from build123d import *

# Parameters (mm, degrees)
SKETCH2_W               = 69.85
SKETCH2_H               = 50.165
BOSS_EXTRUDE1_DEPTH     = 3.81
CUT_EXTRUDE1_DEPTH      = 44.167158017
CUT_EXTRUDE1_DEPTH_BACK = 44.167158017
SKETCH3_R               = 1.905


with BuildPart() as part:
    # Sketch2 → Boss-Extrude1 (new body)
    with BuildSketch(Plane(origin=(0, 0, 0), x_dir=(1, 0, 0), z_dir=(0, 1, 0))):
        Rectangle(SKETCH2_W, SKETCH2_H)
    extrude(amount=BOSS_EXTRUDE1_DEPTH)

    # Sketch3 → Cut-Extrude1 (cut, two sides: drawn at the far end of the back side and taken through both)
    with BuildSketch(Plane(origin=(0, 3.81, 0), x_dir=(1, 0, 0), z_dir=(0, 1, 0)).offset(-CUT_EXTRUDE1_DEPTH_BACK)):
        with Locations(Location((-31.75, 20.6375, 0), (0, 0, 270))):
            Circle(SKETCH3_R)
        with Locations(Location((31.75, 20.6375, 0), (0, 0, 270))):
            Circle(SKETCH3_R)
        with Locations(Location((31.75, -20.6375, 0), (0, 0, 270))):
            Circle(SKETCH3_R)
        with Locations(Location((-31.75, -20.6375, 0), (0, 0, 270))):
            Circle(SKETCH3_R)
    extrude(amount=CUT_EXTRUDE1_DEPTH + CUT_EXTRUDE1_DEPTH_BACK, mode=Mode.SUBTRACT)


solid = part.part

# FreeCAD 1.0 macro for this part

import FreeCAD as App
import Part
import Sketcher
from FreeCAD import Vector
Q = App.Units.Quantity


def add_polygon(sketch, points):
    """Adds a closed chain of lines whose ends are joined by coincident constraints."""
    first, n = sketch.GeometryCount, len(points)
    for a, b in zip(points, points[1:] + points[:1]):
        sketch.addGeometry(Part.LineSegment(App.Vector(*a, 0), App.Vector(*b, 0)), False)
    for i in range(n):
        sketch.addConstraint(Sketcher.Constraint("Coincident", first + i, 2, first + (i + 1) % n, 1))

doc = App.newDocument("Part")
body = doc.addObject("PartDesign::Body", "Body")

sketch1 = doc.addObject("Sketcher::SketchObject", "Sketch")
body.addObject(sketch1)
sketch1.AttachmentSupport = (doc.XZ_Plane, [""])
sketch1.MapMode = "FlatFace"
add_polygon(sketch1, [(-35, -25), (-35, 25), (35, 25), (35, -25)])
sketch1.addConstraint([
    Sketcher.Constraint("Vertical", 0),
    Sketcher.Constraint("Horizontal", 1),
    Sketcher.Constraint("Vertical", 2),
    Sketcher.Constraint("Horizontal", 3),
    Sketcher.Constraint("Symmetric", 0, 2, 2, 2, -1, 1),
    Sketcher.Constraint("DistanceX", 1, 1, 1, 2, Q("2.75 in")),
    Sketcher.Constraint("DistanceY", 0, 1, 0, 2, Q("1.975 in")),
])
pad1 = doc.addObject("PartDesign::Pad", "Pad")
body.addObject(pad1)
pad1.Profile = sketch1
pad1.Length = Q("0.15 in")
pad1.Reversed = True

sketch2 = doc.addObject("Sketcher::SketchObject", "Sketch001")
body.addObject(sketch2)
sketch2.AttachmentSupport = (doc.XZ_Plane, [""])
sketch2.MapMode = "FlatFace"
sketch2.AttachmentOffset = App.Placement(Vector(0, 0, -0.15 * 25.4), App.Rotation())
sketch2.addGeometry([
    Part.Circle(Vector(-31.8, -20.6, 0), Vector(0, 0, 1), 1.9),
    Part.Circle(Vector(31.8, -20.6, 0), Vector(0, 0, 1), 1.9),
    Part.Circle(Vector(31.8, 20.6, 0), Vector(0, 0, 1), 1.9),
    Part.Circle(Vector(-31.8, 20.6, 0), Vector(0, 0, 1), 1.9),
], False)
sketch2.addConstraint([
    Sketcher.Constraint("Equal", 0, 1),
    Sketcher.Constraint("Equal", 1, 2),
    Sketcher.Constraint("Equal", 2, 3),
    Sketcher.Constraint("Symmetric", 0, 3, 2, 3, -1, 1),
    Sketcher.Constraint("Symmetric", 1, 3, 3, 3, -1, 1),
    Sketcher.Constraint("Symmetric", 0, 3, 1, 3, -2),
    Sketcher.Constraint("Diameter", 0, Q("0.15 in")),
    Sketcher.Constraint("DistanceX", 0, 3, 1, 3, Q("2.5 in")),
    Sketcher.Constraint("DistanceY", 0, 3, -1, 1, Q("0.8125 in")),
])
pocket1 = doc.addObject("PartDesign::Pocket", "Pocket")
body.addObject(pocket1)
pocket1.Profile = sketch2
pocket1.Type = "ThroughAll"
pocket1.Midplane = True

doc.recompute()
